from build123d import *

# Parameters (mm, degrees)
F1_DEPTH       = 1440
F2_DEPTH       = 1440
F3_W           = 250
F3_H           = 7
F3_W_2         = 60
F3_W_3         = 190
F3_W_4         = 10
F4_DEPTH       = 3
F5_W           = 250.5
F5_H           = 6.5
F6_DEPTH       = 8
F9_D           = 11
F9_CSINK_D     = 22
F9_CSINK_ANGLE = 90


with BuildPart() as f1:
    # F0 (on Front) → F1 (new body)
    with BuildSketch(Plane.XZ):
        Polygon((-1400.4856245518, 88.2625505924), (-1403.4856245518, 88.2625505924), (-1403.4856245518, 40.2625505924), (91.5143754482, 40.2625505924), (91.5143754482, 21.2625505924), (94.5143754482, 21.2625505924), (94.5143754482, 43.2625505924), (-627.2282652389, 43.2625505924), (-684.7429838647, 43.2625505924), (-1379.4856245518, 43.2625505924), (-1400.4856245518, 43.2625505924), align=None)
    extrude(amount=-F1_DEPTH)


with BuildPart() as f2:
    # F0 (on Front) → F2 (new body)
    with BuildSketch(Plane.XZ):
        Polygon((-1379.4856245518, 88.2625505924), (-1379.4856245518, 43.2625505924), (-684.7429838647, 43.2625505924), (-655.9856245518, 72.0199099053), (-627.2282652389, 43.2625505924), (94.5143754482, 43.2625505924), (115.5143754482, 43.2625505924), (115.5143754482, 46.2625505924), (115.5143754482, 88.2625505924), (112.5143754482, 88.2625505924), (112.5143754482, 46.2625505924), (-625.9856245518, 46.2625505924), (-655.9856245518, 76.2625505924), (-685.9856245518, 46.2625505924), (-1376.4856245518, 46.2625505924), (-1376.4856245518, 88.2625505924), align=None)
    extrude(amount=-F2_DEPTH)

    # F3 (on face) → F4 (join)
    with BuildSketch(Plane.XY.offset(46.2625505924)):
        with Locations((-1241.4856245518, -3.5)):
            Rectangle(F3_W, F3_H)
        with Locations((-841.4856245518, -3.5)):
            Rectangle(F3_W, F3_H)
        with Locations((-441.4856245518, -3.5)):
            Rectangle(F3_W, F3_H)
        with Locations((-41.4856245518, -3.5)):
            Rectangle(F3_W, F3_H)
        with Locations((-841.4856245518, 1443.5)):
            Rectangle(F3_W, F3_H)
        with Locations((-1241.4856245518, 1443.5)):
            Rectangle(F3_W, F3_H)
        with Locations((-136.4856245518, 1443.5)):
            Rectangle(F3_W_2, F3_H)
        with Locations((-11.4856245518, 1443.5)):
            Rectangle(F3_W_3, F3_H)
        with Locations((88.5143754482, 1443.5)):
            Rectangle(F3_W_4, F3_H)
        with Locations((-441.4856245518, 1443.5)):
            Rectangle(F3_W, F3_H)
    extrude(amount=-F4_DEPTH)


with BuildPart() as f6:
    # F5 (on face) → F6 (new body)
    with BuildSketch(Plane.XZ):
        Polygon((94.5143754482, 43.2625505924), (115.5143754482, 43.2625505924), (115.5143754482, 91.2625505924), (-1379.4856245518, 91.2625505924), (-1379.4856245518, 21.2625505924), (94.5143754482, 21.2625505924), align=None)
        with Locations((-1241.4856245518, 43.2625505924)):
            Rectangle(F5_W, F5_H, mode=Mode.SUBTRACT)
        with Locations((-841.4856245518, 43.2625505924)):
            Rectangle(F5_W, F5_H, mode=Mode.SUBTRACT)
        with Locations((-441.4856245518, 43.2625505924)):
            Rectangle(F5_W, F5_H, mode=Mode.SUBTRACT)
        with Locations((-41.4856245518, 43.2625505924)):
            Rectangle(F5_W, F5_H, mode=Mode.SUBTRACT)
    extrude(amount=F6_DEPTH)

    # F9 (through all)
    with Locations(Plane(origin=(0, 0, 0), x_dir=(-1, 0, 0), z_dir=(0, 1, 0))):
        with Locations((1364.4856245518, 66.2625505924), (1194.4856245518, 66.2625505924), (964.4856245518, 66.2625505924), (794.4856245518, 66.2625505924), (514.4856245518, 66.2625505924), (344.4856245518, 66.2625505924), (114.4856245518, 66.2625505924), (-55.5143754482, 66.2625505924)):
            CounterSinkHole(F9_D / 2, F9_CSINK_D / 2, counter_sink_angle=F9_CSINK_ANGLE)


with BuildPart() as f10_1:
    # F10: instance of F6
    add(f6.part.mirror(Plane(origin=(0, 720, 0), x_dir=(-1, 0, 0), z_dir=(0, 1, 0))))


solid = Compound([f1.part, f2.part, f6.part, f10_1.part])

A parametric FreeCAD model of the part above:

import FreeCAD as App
import Part
import Sketcher

V = App.Vector


def add_polygon(sketch, points):
    """Adds a closed chain of lines whose ends are joined by coincident constraints."""
    first, n = sketch.GeometryCount, len(points)
    for a, b in zip(points, points[1:] + points[:1]):
        sketch.addGeometry(Part.LineSegment(App.Vector(*a, 0), App.Vector(*b, 0)), False)
    for i in range(n):
        sketch.addConstraint(Sketcher.Constraint("Coincident", first + i, 2, first + (i + 1) % n, 1))

doc = App.newDocument("Part")
body = doc.addObject("PartDesign::Body", "Body")

# Sketch on XZ plane
sketch1 = body.newObject("Sketcher::SketchObject", "Sketch")
sketch1.AttachmentSupport = (doc.getObject("XZ_Plane"), [""])
sketch1.MapMode = "FlatFace"
add_polygon(sketch1, [(-1400.485625, 88.262551), (-1403.485625, 88.262551), (-1403.485625, 40.262551), (91.514375, 40.262551), (91.514375, 21.262551), (94.514375, 21.262551), (94.514375, 43.262551), (-1400.485625, 43.262551)])  # lines 0-7
sketch1.addConstraint([
    Sketcher.Constraint("Horizontal", 0),
    Sketcher.Constraint("Vertical", 1),
    Sketcher.Constraint("Horizontal", 2),
    Sketcher.Constraint("Vertical", 3),
    Sketcher.Constraint("Horizontal", 4),
    Sketcher.Constraint("Vertical", 5),
    Sketcher.Constraint("Horizontal", 6),
    Sketcher.Constraint("Vertical", 7),
    Sketcher.Constraint("Equal", 0, 4),
    Sketcher.Constraint("DistanceX", 0, 2, 0, 1, 3.0),
    Sketcher.Constraint("DistanceX", 2, 1, 2, 2, 1495.0),
    Sketcher.Constraint("DistanceY", 1, 2, 1, 1, 48.0),
    Sketcher.Constraint("DistanceY", 3, 2, 3, 1, 19.0),
    Sketcher.Constraint("DistanceY", 5, 1, 5, 2, 22.0),
    Sketcher.Constraint("DistanceY", -1, 1, 0, 2, 88.262551),
    Sketcher.Constraint("DistanceX", 0, 2, -1, 1, 1403.485625),
])
pad1 = body.newObject("PartDesign::Pad", "Pad")
pad1.Profile = sketch1
pad1.Length = 1440
pad1.Reversed = True
body2 = doc.addObject("PartDesign::Body", "Body001")

# Sketch on XZ plane
sketch2 = body2.newObject("Sketcher::SketchObject", "Sketch001")
sketch2.AttachmentSupport = (doc.getObject("XZ_Plane001"), [""])
sketch2.MapMode = "FlatFace"
add_polygon(sketch2, [(-1379.485625, 88.262551), (-1379.485625, 43.262551), (-684.742984, 43.262551), (-655.985625, 72.01991), (-627.228265, 43.262551), (115.514375, 43.262551), (115.514375, 88.262551), (112.514375, 88.262551), (112.514375, 46.262551), (-625.985625, 46.262551), (-655.985625, 76.262551), (-685.985625, 46.262551), (-1376.485625, 46.262551), (-1376.485625, 88.262551)])  # lines 0-13
sketch2.addConstraint([
    Sketcher.Constraint("Vertical", 0),
    Sketcher.Constraint("Horizontal", 1),
    Sketcher.Constraint("Horizontal", 4),
    Sketcher.Constraint("Vertical", 5),
    Sketcher.Constraint("Horizontal", 6),
    Sketcher.Constraint("Vertical", 7),
    Sketcher.Constraint("Horizontal", 8),
    Sketcher.Constraint("Horizontal", 11),
    Sketcher.Constraint("Vertical", 12),
    Sketcher.Constraint("Horizontal", 13),
    Sketcher.Constraint("Perpendicular", 2, 3),
    Sketcher.Constraint("Parallel", 3, 9),
    Sketcher.Constraint("Perpendicular", 9, 10),
    Sketcher.Constraint("Horizontal", 1, 2, 3, 2),
    Sketcher.Constraint("Horizontal", 8, 2, 10, 2),
    Sketcher.Constraint("Horizontal", 6, 2, 12, 2),
    Sketcher.Constraint("Vertical", 2, 2, 9, 2),
    Sketcher.Constraint("Equal", 6, 13),
    Sketcher.Constraint("Equal", 2, 3),
    Sketcher.Constraint("DistanceX", 6, 2, 6, 1, 3.0),
    Sketcher.Constraint("DistanceY", 0, 2, 0, 1, 45.0),
    Sketcher.Constraint("DistanceY", 7, 2, 7, 1, 42.0),
    Sketcher.Constraint("DistanceX", 8, 2, 8, 1, 738.5),
    Sketcher.Constraint("DistanceX", 11, 2, 11, 1, 690.5),
    Sketcher.Constraint("DistanceX", 0, 2, 4, 2, 1495.0),
    Sketcher.Constraint("DistanceX", 1, 1, 1, 2, 694.742641),
    Sketcher.Constraint("DistanceY", -1, 1, 0, 2, 43.262551),
    Sketcher.Constraint("DistanceX", 0, 2, -1, 1, 1379.485625),
])
pad2 = body2.newObject("PartDesign::Pad", "Pad001")
pad2.Profile = sketch2
pad2.Length = 1440
pad2.Reversed = True

# Sketch on XY plane
sketch3 = body2.newObject("Sketcher::SketchObject", "Sketch002")
sketch3.AttachmentSupport = (doc.getObject("XY_Plane001"), [""])
sketch3.MapMode = "FlatFace"
sketch3.AttachmentOffset = App.Placement(V(0, 0, 46.262551), App.Rotation())
add_polygon(sketch3, [(-1366.485625, 0), (-1366.485625, -7), (-1116.485625, -7), (-1116.485625, 0)])  # lines 0-3
add_polygon(sketch3, [(-966.485625, 0), (-966.485625, -7), (-716.485625, -7), (-716.485625, 0)])  # lines 4-7
add_polygon(sketch3, [(-566.485625, 0), (-566.485625, -7), (-316.485625, -7), (-316.485625, 0)])  # lines 8-11
add_polygon(sketch3, [(-166.485625, 0), (-166.485625, -7), (83.514375, -7), (83.514375, 0)])  # lines 12-15
add_polygon(sketch3, [(-966.485625, 1447), (-966.485625, 1440), (-716.485625, 1440), (-716.485625, 1447)])  # lines 16-19
add_polygon(sketch3, [(-1366.485625, 1447), (-1366.485625, 1440), (-1116.485625, 1440), (-1116.485625, 1447)])  # lines 20-23
add_polygon(sketch3, [(-166.485625, 1447), (-166.485625, 1440), (93.514375, 1440), (93.514375, 1447)])  # lines 24-27
add_polygon(sketch3, [(-566.485625, 1447), (-566.485625, 1440), (-316.485625, 1440), (-316.485625, 1447)])  # lines 28-31
sketch3.addConstraint([
    Sketcher.Constraint("Vertical", 0),
    Sketcher.Constraint("Horizontal", 1),
    Sketcher.Constraint("Vertical", 2),
    Sketcher.Constraint("Horizontal", 3),
    Sketcher.Constraint("Vertical", 4),
    Sketcher.Constraint("Horizontal", 5),
    Sketcher.Constraint("Vertical", 6),
    Sketcher.Constraint("Horizontal", 7),
    Sketcher.Constraint("Vertical", 8),
    Sketcher.Constraint("Horizontal", 9),
    Sketcher.Constraint("Vertical", 10),
    Sketcher.Constraint("Horizontal", 11),
    Sketcher.Constraint("Vertical", 12),
    Sketcher.Constraint("Horizontal", 13),
    Sketcher.Constraint("Vertical", 14),
    Sketcher.Constraint("Horizontal", 15),
    Sketcher.Constraint("Vertical", 16),
    Sketcher.Constraint("Horizontal", 17),
    Sketcher.Constraint("Vertical", 18),
    Sketcher.Constraint("Horizontal", 19),
    Sketcher.Constraint("Vertical", 20),
    Sketcher.Constraint("Horizontal", 21),
    Sketcher.Constraint("Vertical", 22),
    Sketcher.Constraint("Horizontal", 23),
    Sketcher.Constraint("Vertical", 24),
    Sketcher.Constraint("Horizontal", 25),
    Sketcher.Constraint("Vertical", 26),
    Sketcher.Constraint("Horizontal", 27),
    Sketcher.Constraint("Vertical", 28),
    Sketcher.Constraint("Horizontal", 29),
    Sketcher.Constraint("Vertical", 30),
    Sketcher.Constraint("Horizontal", 31),
    Sketcher.Constraint("PointOnObject", 2, 2, -1),
    Sketcher.Constraint("PointOnObject", 6, 2, -1),
    Sketcher.Constraint("PointOnObject", 10, 2, -1),
    Sketcher.Constraint("PointOnObject", 14, 2, -1),
    Sketcher.Constraint("Horizontal", 1, 2, 4, 2),
    Sketcher.Constraint("Horizontal", 5, 2, 8, 2),
    Sketcher.Constraint("Horizontal", 9, 2, 12, 2),
    Sketcher.Constraint("Horizontal", 17, 2, 20, 2),
    Sketcher.Constraint("Horizontal", 19, 2, 22, 2),
    Sketcher.Constraint("Horizontal", 21, 2, 24, 2),
    Sketcher.Constraint("Horizontal", 23, 2, 26, 2),
    Sketcher.Constraint("Horizontal", 25, 2, 28, 2),
    Sketcher.Constraint("Horizontal", 27, 2, 30, 2),
    Sketcher.Constraint("Vertical", 7, 2, 16, 2),
    Sketcher.Constraint("Vertical", 6, 2, 17, 2),
    Sketcher.Constraint("Vertical", 3, 2, 20, 2),
    Sketcher.Constraint("Vertical", 2, 2, 21, 2),
    Sketcher.Constraint("Vertical", 15, 2, 24, 2),
    Sketcher.Constraint("Vertical", 11, 2, 28, 2),
    Sketcher.Constraint("Vertical", 10, 2, 29, 2),
    Sketcher.Constraint("Equal", 3, 5),
    Sketcher.Constraint("Equal", 7, 9),
    Sketcher.Constraint("Equal", 11, 13),
    Sketcher.Constraint("Equal", 14, 16),
    Sketcher.Constraint("DistanceX", 1, 1, 1, 2, 250.0),
    Sketcher.Constraint("DistanceX", 25, 1, 25, 2, 260.0),
    Sketcher.Constraint("DistanceY", 0, 2, 0, 1, 7.0),
    Sketcher.Constraint("DistanceY", -1, 1, 16, 2, 1440.0),
    Sketcher.Constraint("DistanceX", 1, 2, 4, 2, 150.0),
    Sketcher.Constraint("DistanceX", 5, 2, 8, 2, 150.0),
    Sketcher.Constraint("DistanceX", 9, 2, 12, 2, 150.0),
    Sketcher.Constraint("DistanceX", 0, 2, -1, 1, 1366.485625),
])
pad3 = body2.newObject("PartDesign::Pad", "Pad002")
pad3.Profile = sketch3
pad3.Length = 3
pad3.Reversed = True
body3 = doc.addObject("PartDesign::Body", "Body002")

# Sketch on XZ plane
sketch4 = body3.newObject("Sketcher::SketchObject", "Sketch003")
sketch4.AttachmentSupport = (doc.getObject("XZ_Plane002"), [""])
sketch4.MapMode = "FlatFace"
add_polygon(sketch4, [(94.514375, 43.262551), (115.514375, 43.262551), (115.514375, 91.262551), (-1379.485625, 91.262551), (-1379.485625, 21.262551), (94.514375, 21.262551)])  # lines 0-5
add_polygon(sketch4, [(-1116.235625, 40.012551), (-1366.735625, 40.012551), (-1366.735625, 46.512551), (-1116.235625, 46.512551)])  # lines 6-9
add_polygon(sketch4, [(-716.235625, 40.012551), (-966.735625, 40.012551), (-966.735625, 46.512551), (-716.235625, 46.512551)])  # lines 10-13
add_polygon(sketch4, [(-316.235625, 40.012551), (-566.735625, 40.012551), (-566.735625, 46.512551), (-316.235625, 46.512551)])  # lines 14-17
add_polygon(sketch4, [(83.764375, 40.012551), (-166.735625, 40.012551), (-166.735625, 46.512551), (83.764375, 46.512551)])  # lines 18-21
sketch4.addConstraint([
    Sketcher.Constraint("Horizontal", 0),
    Sketcher.Constraint("Vertical", 1),
    Sketcher.Constraint("Horizontal", 2),
    Sketcher.Constraint("Vertical", 3),
    Sketcher.Constraint("Horizontal", 4),
    Sketcher.Constraint("Vertical", 5),
    Sketcher.Constraint("Horizontal", 6),
    Sketcher.Constraint("Vertical", 7),
    Sketcher.Constraint("Horizontal", 8),
    Sketcher.Constraint("Vertical", 9),
    Sketcher.Constraint("Horizontal", 10),
    Sketcher.Constraint("Vertical", 11),
    Sketcher.Constraint("Horizontal", 12),
    Sketcher.Constraint("Vertical", 13),
    Sketcher.Constraint("Horizontal", 14),
    Sketcher.Constraint("Vertical", 15),
    Sketcher.Constraint("Horizontal", 16),
    Sketcher.Constraint("Vertical", 17),
    Sketcher.Constraint("Horizontal", 18),
    Sketcher.Constraint("Vertical", 19),
    Sketcher.Constraint("Horizontal", 20),
    Sketcher.Constraint("Vertical", 21),
    Sketcher.Constraint("Horizontal", 9, 2, 10, 2),
    Sketcher.Constraint("Horizontal", 8, 2, 11, 2),
    Sketcher.Constraint("Horizontal", 13, 2, 14, 2),
    Sketcher.Constraint("Horizontal", 12, 2, 15, 2),
    Sketcher.Constraint("Horizontal", 17, 2, 18, 2),
    Sketcher.Constraint("Horizontal", 16, 2, 19, 2),
    Sketcher.Constraint("Equal", 8, 10),
    Sketcher.Constraint("Equal", 12, 14),
    Sketcher.Constraint("Equal", 16, 18),
    Sketcher.Constraint("DistanceX", 0, 1, 0, 2, 21.0),
    Sketcher.Constraint("DistanceX", 2, 2, 2, 1, 1495.0),
    Sketcher.Constraint("DistanceY", 1, 1, 1, 2, 48.0),
    Sketcher.Constraint("DistanceY", 3, 2, 3, 1, 70.0),
    Sketcher.Constraint("DistanceX", 6, 2, 6, 1, 250.5),
    Sketcher.Constraint("DistanceY", 7, 1, 7, 2, 6.5),
    Sketcher.Constraint("DistanceX", 6, 2, 10, 2, 400.0),
    Sketcher.Constraint("DistanceX", 10, 2, 14, 2, 400.0),
    Sketcher.Constraint("DistanceX", 17, 2, 18, 2, 149.5),
    Sketcher.Constraint("DistanceX", 3, 2, 6, 2, 12.75),
    Sketcher.Constraint("DistanceY", 3, 2, 6, 2, 18.75),
    Sketcher.Constraint("DistanceY", -1, 1, 0, 2, 43.262551),
    Sketcher.Constraint("DistanceX", -1, 1, 0, 2, 115.514375),
])
pad4 = body3.newObject("PartDesign::Pad", "Pad003")
pad4.Profile = sketch4
pad4.Length = 8

# Sketch on XZ plane
sketch5 = body3.newObject("Sketcher::SketchObject", "Sketch004")
sketch5.AttachmentSupport = (doc.getObject("XZ_Plane002"), [""])
sketch5.MapMode = "FlatFace"
sketch5.addGeometry([
    Part.Circle(V(-1364.485625, 66.262551, 0), V(0, 0, 1), 5.5),  # 0
    Part.Circle(V(-1194.485625, 66.262551, 0), V(0, 0, 1), 5.5),  # 1
    Part.Circle(V(-964.485625, 66.262551, 0), V(0, 0, 1), 5.5),  # 2
    Part.Circle(V(-794.485625, 66.262551, 0), V(0, 0, 1), 5.5),  # 3
    Part.Circle(V(-514.485625, 66.262551, 0), V(0, 0, 1), 5.5),  # 4
    Part.Circle(V(-344.485625, 66.262551, 0), V(0, 0, 1), 5.5),  # 5
    Part.Circle(V(-114.485625, 66.262551, 0), V(0, 0, 1), 5.5),  # 6
    Part.Circle(V(55.514375, 66.262551, 0), V(0, 0, 1), 5.5),  # 7
], False)
sketch5.addConstraint([
    Sketcher.Constraint("Equal", 0, 1),
    Sketcher.Constraint("Equal", 1, 2),
    Sketcher.Constraint("Equal", 2, 3),
    Sketcher.Constraint("Equal", 3, 4),
    Sketcher.Constraint("Equal", 4, 5),
    Sketcher.Constraint("Equal", 5, 6),
    Sketcher.Constraint("Equal", 6, 7),
    Sketcher.Constraint("Horizontal", 0, 3, 1, 3),
    Sketcher.Constraint("Horizontal", 1, 3, 2, 3),
    Sketcher.Constraint("Horizontal", 2, 3, 3, 3),
    Sketcher.Constraint("Horizontal", 3, 3, 4, 3),
    Sketcher.Constraint("Horizontal", 4, 3, 5, 3),
    Sketcher.Constraint("Horizontal", 5, 3, 6, 3),
    Sketcher.Constraint("Horizontal", 6, 3, 7, 3),
    Sketcher.Constraint("Diameter", 0, 11.0),
    Sketcher.Constraint("DistanceX", 0, 3, 1, 3, 170.0),
    Sketcher.Constraint("DistanceX", 1, 3, 2, 3, 230.0),
    Sketcher.Constraint("DistanceX", 2, 3, 3, 3, 170.0),
    Sketcher.Constraint("DistanceX", 3, 3, 4, 3, 280.0),
    Sketcher.Constraint("DistanceX", 4, 3, 5, 3, 170.0),
    Sketcher.Constraint("DistanceX", 5, 3, 6, 3, 230.0),
    Sketcher.Constraint("DistanceX", 6, 3, 7, 3, 170.0),
    Sketcher.Constraint("DistanceY", -1, 1, 0, 3, 66.262551),
    Sketcher.Constraint("DistanceX", 0, 3, -1, 1, 1364.485625),
])
doc.recompute()
hole = body3.newObject("PartDesign::Hole", "Hole")
hole.Profile = sketch5
hole.ThreadType = "None"
hole.Diameter = 11
hole.DepthType = "ThroughAll"
hole.HoleCutType = "Countersink"
hole.HoleCutDiameter = 22
hole.HoleCutCountersinkAngle = 90
hole.Reversed = True
body4 = doc.addObject("PartDesign::Body", "Body003")
doc.recompute()

mirroring = doc.addObject("Part::Mirroring", "Mirroring")
mirroring.Source = body3
mirroring.Base = V(0, 720, 0)
mirroring.Normal = V(0, 1, 0)
body4.BaseFeature = mirroring
doc.recompute()
mirroring.Visibility = False

doc.recompute()
